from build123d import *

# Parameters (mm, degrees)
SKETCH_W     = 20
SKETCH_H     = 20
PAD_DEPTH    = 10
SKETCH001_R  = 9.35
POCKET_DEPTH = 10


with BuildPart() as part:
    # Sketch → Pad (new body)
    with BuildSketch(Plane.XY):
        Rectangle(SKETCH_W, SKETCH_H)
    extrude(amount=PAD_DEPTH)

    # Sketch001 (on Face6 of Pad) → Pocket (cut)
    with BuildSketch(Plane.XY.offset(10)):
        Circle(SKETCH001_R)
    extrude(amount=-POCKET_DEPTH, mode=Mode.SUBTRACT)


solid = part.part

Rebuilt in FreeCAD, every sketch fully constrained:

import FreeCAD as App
import Part
import Sketcher

doc = App.newDocument("Part")
body = doc.addObject("PartDesign::Body", "Body")

sketch1 = body.newObject("Sketcher::SketchObject", "Sketch")
sketch1.AttachmentSupport = (doc.getObject("XY_Plane"), [""])
sketch1.MapMode = "FlatFace"
sketch1.addGeometry([
    Part.LineSegment(App.Vector(-10, 10, 0), App.Vector(-10, -10, 0)),
    Part.LineSegment(App.Vector(-10, -10, 0), App.Vector(10, -10, 0)),
    Part.LineSegment(App.Vector(10, -10, 0), App.Vector(10, 10, 0)),
    Part.LineSegment(App.Vector(10, 10, 0), App.Vector(-10, 10, 0)),
], False)
sketch1.addConstraint([
    Sketcher.Constraint("Coincident", 0, 2, 1, 1),
    Sketcher.Constraint("Coincident", 1, 2, 2, 1),
    Sketcher.Constraint("Coincident", 2, 2, 3, 1),
    Sketcher.Constraint("Coincident", 3, 2, 0, 1),
    Sketcher.Constraint("Vertical", 0),
    Sketcher.Constraint("Horizontal", 1),
    Sketcher.Constraint("Vertical", 2),
    Sketcher.Constraint("Horizontal", 3),
    Sketcher.Constraint("Symmetric", 0, 2, 2, 2, -1, 1),
    Sketcher.Constraint("Equal", 3, 0),
    Sketcher.Constraint("DistanceX", 1, 1, 1, 2, 20.0),
])
pad1 = body.newObject("PartDesign::Pad", "Pad")
pad1.Profile = sketch1
pad1.Length = 10

sketch2 = body.newObject("Sketcher::SketchObject", "Sketch001")
sketch2.AttachmentSupport = (doc.getObject("XY_Plane"), [""])
sketch2.MapMode = "FlatFace"
sketch2.AttachmentOffset = App.Placement(App.Vector(0, 0, 10), App.Rotation())
sketch2.addGeometry(Part.Circle(App.Vector(0, 0, 0), App.Vector(0, 0, 1), 9), False)
sketch2.addConstraint([
    Sketcher.Constraint("Coincident", 0, 3, -1, 1),
    Sketcher.Constraint("Diameter", 0, 18.7),
])
pocket1 = body.newObject("PartDesign::Pocket", "Pocket")
pocket1.Profile = sketch2
pocket1.Length = 10

doc.recompute()
